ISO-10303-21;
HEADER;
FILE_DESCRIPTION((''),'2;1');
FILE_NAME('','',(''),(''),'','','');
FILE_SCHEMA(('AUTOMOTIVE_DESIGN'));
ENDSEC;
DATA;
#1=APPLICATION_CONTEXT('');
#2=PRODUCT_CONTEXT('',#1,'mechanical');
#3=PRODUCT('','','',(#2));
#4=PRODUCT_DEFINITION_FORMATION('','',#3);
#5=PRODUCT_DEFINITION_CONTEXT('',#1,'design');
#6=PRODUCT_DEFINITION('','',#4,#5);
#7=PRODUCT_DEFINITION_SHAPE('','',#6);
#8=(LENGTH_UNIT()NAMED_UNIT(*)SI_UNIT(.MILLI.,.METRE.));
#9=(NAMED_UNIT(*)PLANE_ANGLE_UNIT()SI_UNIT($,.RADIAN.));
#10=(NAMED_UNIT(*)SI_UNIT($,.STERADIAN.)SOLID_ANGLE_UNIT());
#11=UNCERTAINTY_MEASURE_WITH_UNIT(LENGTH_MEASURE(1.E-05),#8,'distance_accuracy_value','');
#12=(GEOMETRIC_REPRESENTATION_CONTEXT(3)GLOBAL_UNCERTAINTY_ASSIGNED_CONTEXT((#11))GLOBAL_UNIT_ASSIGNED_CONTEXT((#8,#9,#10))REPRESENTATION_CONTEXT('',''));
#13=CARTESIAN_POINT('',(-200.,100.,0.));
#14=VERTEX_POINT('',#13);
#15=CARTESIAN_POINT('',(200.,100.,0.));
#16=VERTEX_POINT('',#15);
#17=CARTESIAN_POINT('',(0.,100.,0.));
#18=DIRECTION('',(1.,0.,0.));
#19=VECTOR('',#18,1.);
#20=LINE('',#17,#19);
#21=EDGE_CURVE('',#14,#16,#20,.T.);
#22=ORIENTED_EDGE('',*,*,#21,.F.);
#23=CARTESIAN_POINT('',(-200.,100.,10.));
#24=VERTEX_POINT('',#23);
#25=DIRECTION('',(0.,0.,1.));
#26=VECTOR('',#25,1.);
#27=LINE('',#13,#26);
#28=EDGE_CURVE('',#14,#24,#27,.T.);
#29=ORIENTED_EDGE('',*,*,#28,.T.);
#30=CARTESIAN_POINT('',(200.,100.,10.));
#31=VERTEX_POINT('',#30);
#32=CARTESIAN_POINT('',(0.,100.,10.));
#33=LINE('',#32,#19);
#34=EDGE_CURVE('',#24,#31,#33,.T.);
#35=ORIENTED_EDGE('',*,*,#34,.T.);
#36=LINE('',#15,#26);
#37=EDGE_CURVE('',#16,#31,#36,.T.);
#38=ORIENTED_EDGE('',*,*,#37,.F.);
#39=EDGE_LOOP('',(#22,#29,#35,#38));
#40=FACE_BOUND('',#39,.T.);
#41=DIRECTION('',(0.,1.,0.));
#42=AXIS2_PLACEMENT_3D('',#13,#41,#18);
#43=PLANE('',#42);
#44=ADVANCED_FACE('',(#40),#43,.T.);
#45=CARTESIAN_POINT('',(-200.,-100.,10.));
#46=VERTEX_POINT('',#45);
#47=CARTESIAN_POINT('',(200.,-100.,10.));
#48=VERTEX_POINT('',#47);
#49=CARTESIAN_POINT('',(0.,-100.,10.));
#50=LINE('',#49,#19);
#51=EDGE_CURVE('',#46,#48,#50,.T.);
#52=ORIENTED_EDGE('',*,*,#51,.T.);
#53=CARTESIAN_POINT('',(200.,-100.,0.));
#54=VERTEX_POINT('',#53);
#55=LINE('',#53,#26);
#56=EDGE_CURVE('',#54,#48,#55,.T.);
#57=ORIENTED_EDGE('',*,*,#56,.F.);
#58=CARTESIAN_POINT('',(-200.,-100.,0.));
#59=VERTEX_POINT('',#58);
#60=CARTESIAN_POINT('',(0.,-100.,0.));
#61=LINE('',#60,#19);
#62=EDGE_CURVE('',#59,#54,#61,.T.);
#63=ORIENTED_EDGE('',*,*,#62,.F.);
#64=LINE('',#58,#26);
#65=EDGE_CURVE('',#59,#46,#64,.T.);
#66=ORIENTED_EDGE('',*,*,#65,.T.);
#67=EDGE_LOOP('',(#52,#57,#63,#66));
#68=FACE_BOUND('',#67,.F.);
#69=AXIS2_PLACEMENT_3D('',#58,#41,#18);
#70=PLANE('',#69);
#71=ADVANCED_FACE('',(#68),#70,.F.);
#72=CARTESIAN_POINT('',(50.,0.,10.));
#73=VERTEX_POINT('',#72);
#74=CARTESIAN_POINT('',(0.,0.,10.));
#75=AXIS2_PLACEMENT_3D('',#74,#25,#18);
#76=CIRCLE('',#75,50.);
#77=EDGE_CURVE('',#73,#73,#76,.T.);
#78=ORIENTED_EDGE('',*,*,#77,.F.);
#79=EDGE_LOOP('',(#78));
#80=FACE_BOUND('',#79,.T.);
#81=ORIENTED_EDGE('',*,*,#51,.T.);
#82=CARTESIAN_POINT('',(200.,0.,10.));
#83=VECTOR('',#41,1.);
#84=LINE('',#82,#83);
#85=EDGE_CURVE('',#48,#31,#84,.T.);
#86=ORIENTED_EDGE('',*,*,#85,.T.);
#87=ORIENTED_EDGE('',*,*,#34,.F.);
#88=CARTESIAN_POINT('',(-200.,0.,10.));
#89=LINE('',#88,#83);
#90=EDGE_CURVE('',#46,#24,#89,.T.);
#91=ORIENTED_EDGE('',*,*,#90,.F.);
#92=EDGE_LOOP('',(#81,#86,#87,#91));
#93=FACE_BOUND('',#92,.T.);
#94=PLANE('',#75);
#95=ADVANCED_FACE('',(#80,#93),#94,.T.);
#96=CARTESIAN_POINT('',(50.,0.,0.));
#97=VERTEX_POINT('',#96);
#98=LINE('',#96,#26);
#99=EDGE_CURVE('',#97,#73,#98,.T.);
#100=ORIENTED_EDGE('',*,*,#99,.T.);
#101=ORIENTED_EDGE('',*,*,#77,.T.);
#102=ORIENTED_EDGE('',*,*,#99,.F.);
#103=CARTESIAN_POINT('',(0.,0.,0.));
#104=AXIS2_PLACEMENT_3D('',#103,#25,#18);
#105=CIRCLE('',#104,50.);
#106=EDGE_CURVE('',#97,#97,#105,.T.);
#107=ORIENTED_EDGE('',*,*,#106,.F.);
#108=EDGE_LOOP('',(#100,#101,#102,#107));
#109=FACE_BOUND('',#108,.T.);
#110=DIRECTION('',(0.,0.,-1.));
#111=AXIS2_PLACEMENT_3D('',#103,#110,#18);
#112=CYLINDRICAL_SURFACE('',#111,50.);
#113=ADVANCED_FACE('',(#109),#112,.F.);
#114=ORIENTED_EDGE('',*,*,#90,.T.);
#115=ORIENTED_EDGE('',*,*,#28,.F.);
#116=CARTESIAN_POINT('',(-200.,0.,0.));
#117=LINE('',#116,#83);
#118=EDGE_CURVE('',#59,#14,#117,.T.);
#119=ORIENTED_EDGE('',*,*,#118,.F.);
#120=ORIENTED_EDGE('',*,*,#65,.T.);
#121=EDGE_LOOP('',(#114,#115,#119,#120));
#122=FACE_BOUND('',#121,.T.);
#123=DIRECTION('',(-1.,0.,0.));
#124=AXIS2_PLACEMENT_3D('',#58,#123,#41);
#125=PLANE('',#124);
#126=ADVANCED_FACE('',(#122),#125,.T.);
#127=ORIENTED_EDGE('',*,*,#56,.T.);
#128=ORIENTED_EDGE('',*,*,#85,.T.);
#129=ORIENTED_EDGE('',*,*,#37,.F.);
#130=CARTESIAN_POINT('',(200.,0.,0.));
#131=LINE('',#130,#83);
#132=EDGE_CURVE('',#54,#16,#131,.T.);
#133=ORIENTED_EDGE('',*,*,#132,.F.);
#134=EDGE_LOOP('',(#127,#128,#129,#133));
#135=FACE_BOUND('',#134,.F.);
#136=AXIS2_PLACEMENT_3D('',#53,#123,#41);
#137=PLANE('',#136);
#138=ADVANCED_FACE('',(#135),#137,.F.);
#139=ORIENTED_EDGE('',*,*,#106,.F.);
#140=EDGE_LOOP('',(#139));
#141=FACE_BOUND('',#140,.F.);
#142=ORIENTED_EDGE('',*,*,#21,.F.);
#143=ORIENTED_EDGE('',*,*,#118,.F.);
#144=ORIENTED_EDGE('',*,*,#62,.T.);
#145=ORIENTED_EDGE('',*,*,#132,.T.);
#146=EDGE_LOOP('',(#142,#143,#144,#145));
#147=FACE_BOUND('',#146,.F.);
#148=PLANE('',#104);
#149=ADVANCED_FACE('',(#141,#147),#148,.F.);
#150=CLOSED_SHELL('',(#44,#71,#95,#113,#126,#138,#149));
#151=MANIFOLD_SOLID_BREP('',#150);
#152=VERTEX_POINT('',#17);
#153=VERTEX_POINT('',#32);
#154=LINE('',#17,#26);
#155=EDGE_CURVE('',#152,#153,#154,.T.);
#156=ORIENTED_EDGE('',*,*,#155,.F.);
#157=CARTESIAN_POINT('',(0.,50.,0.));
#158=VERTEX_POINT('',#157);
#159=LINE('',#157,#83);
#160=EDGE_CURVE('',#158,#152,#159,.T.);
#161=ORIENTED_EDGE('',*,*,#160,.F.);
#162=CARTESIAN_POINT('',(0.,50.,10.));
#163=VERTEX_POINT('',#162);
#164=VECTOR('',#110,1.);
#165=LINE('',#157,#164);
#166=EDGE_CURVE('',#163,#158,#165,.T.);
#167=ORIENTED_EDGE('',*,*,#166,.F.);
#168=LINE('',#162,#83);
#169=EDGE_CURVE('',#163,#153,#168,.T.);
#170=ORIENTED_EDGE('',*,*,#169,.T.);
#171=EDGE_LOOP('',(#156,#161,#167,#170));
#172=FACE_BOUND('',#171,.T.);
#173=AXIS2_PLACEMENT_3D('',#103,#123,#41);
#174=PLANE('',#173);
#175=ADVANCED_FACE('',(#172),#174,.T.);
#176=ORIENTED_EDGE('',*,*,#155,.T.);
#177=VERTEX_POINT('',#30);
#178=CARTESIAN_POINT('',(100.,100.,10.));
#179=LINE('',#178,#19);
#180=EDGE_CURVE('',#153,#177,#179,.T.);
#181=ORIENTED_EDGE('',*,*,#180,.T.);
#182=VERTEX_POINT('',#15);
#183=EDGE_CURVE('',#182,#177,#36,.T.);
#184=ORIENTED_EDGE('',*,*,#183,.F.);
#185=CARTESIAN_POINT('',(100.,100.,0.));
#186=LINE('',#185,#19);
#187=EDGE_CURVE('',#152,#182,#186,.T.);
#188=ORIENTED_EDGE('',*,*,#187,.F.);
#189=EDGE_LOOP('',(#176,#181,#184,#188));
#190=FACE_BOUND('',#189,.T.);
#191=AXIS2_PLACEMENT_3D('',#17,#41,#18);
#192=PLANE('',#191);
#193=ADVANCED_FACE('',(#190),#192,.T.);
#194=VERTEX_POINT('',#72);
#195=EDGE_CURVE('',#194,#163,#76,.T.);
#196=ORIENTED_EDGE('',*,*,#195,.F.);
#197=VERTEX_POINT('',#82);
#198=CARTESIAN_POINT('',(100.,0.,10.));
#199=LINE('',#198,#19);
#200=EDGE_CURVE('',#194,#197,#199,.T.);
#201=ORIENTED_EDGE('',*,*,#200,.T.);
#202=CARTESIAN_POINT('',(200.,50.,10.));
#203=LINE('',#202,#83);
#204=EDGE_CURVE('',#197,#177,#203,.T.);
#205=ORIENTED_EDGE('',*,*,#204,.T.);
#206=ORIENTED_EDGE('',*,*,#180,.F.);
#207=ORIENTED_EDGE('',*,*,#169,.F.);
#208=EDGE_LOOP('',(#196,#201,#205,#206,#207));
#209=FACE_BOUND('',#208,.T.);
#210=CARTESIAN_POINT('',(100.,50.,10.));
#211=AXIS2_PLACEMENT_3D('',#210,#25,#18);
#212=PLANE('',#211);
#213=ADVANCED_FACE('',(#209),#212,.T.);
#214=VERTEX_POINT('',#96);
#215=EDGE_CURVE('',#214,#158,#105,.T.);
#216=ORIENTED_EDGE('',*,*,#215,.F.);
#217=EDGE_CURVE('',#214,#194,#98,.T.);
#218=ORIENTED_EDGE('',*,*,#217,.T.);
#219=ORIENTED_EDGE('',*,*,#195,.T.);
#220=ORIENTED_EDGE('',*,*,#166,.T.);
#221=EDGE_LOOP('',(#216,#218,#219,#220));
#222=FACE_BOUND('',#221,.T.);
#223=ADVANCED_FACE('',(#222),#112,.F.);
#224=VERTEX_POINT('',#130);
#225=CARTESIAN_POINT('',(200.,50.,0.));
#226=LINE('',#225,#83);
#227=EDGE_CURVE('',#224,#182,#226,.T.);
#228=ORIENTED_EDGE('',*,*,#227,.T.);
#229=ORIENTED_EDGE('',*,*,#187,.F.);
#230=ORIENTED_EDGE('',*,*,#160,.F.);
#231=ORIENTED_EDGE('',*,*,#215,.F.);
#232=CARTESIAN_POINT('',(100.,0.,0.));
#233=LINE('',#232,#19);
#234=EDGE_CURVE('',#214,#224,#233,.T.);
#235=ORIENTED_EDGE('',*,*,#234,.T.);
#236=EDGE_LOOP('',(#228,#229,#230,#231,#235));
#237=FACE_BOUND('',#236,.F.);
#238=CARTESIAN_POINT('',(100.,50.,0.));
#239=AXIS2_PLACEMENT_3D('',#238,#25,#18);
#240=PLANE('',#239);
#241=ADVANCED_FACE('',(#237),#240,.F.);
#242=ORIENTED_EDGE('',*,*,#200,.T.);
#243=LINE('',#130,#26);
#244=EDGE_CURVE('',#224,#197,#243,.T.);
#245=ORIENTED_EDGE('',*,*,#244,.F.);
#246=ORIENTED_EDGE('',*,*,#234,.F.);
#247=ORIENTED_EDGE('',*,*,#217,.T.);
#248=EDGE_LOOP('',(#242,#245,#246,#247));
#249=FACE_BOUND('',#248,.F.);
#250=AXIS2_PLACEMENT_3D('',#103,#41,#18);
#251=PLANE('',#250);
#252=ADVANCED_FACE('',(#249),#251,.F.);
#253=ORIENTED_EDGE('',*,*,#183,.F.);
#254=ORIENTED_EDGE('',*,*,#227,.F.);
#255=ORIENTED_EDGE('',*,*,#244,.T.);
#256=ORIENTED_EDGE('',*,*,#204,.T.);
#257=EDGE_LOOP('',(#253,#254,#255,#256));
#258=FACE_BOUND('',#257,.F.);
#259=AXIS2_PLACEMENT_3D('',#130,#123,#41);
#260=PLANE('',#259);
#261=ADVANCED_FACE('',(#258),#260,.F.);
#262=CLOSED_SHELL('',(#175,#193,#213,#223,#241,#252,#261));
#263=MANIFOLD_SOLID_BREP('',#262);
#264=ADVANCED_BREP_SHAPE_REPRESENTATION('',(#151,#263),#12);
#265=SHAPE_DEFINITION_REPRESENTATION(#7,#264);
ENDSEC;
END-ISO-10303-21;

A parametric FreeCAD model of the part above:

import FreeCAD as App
import Part
import Sketcher
Q = App.Units.Quantity


def add_polygon(sketch, points):
    """Adds a closed chain of lines whose ends are joined by coincident constraints."""
    first, n = sketch.GeometryCount, len(points)
    for a, b in zip(points, points[1:] + points[:1]):
        sketch.addGeometry(Part.LineSegment(App.Vector(*a, 0), App.Vector(*b, 0)), False)
    for i in range(n):
        sketch.addConstraint(Sketcher.Constraint("Coincident", first + i, 2, first + (i + 1) % n, 1))

doc = App.newDocument("Part")
params = doc.addObject("Spreadsheet::Sheet", "Params")
for row, (alias, value) in enumerate([
    ("sketch1_diameter", "100 mm"),
    ("pad1_length", "10 mm"),
    ("sketch2_width", "200 mm"),
    ("sketch2_height", "100 mm"),
    ("pad2_length", "10 mm"),
    ("sketch3_diameter", "100 mm"),
    ("pad3_length", "10 mm"),
    ("sketch4_width", "400 mm"),
    ("sketch4_height", "200 mm"),
    ("pad4_length", "10 mm"),
], start=1):
    params.set(f"A{row}", alias)
    params.set(f"B{row}", "=" + value)
    params.setAlias(f"B{row}", alias)

body = doc.addObject("PartDesign::Body", "Body")

# Sketch on XY plane
sketch1 = doc.addObject("Sketcher::SketchObject", "Sketch")
body.addObject(sketch1)
sketch1.AttachmentSupport = (doc.XY_Plane, [""])
sketch1.MapMode = "FlatFace"
sketch1.addGeometry(Part.Circle(App.Vector(0, 0, 0), App.Vector(0, 0, 1), 50), False)
sketch1.addConstraint([
    Sketcher.Constraint("Coincident", 0, 3, -1, 1),
    Sketcher.Constraint("Diameter", 0, Q("100 mm")),
])
sketch1.setExpression("Constraints[1]", "Params.sketch1_diameter")
pad1 = doc.addObject("PartDesign::Pad", "Pad")
body.addObject(pad1)
pad1.Profile = sketch1
pad1.setExpression("Length", "Params.pad1_length")
body2 = doc.addObject("PartDesign::Body", "Body001")

# Sketch on XY plane
sketch2 = doc.addObject("Sketcher::SketchObject", "Sketch001")
body2.addObject(sketch2)
sketch2.AttachmentSupport = (doc.getObject("XY_Plane001"), [""])
sketch2.MapMode = "FlatFace"
add_polygon(sketch2, [(0, 100), (0, 0), (200, 0), (200, 100)])  # lines 0-3
sketch2.addConstraint([
    Sketcher.Constraint("Vertical", 0),
    Sketcher.Constraint("Horizontal", 1),
    Sketcher.Constraint("Vertical", 2),
    Sketcher.Constraint("Horizontal", 3),
    Sketcher.Constraint("Coincident", 0, 2, -1, 1),
    Sketcher.Constraint("DistanceX", 1, 1, 1, 2, Q("200 mm")),
    Sketcher.Constraint("DistanceY", 0, 2, 0, 1, Q("100 mm")),
])
sketch2.setExpression("Constraints[9]", "Params.sketch2_width")
sketch2.setExpression("Constraints[10]", "Params.sketch2_height")
pad2 = doc.addObject("PartDesign::Pad", "Pad001")
body2.addObject(pad2)
pad2.Profile = sketch2
pad2.setExpression("Length", "Params.pad2_length")
doc.recompute()

boolean = doc.addObject("PartDesign::Boolean", "Boolean")
body2.addObject(boolean)
boolean.Type = "Cut"
boolean.addObjects([body])
body3 = doc.addObject("PartDesign::Body", "Body002")

# Sketch on XY plane
sketch3 = doc.addObject("Sketcher::SketchObject", "Sketch002")
body3.addObject(sketch3)
sketch3.AttachmentSupport = (doc.getObject("XY_Plane002"), [""])
sketch3.MapMode = "FlatFace"
sketch3.addGeometry(Part.Circle(App.Vector(0, 0, 0), App.Vector(0, 0, 1), 50), False)
sketch3.addConstraint([
    Sketcher.Constraint("Coincident", 0, 3, -1, 1),
    Sketcher.Constraint("Diameter", 0, Q("100 mm")),
])
sketch3.setExpression("Constraints[1]", "Params.sketch3_diameter")
pad3 = doc.addObject("PartDesign::Pad", "Pad002")
body3.addObject(pad3)
pad3.Profile = sketch3
pad3.setExpression("Length", "Params.pad3_length")
body4 = doc.addObject("PartDesign::Body", "Body003")

# Sketch on XY plane
sketch4 = doc.addObject("Sketcher::SketchObject", "Sketch003")
body4.addObject(sketch4)
sketch4.AttachmentSupport = (doc.getObject("XY_Plane003"), [""])
sketch4.MapMode = "FlatFace"
add_polygon(sketch4, [(-200, 100), (-200, -100), (200, -100), (200, 100)])  # lines 0-3
sketch4.addConstraint([
    Sketcher.Constraint("Vertical", 0),
    Sketcher.Constraint("Horizontal", 1),
    Sketcher.Constraint("Vertical", 2),
    Sketcher.Constraint("Horizontal", 3),
    Sketcher.Constraint("Symmetric", 0, 2, 2, 2, -1, 1),
    Sketcher.Constraint("DistanceX", 1, 1, 1, 2, Q("400 mm")),
    Sketcher.Constraint("DistanceY", 0, 2, 0, 1, Q("200 mm")),
])
sketch4.setExpression("Constraints[9]", "Params.sketch4_width")
sketch4.setExpression("Constraints[10]", "Params.sketch4_height")
pad4 = doc.addObject("PartDesign::Pad", "Pad003")
body4.addObject(pad4)
pad4.Profile = sketch4
pad4.setExpression("Length", "Params.pad4_length")
doc.recompute()

boolean2 = doc.addObject("PartDesign::Boolean", "Boolean001")
body4.addObject(boolean2)
boolean2.Type = "Cut"
boolean2.addObjects([body3])

doc.recompute()
